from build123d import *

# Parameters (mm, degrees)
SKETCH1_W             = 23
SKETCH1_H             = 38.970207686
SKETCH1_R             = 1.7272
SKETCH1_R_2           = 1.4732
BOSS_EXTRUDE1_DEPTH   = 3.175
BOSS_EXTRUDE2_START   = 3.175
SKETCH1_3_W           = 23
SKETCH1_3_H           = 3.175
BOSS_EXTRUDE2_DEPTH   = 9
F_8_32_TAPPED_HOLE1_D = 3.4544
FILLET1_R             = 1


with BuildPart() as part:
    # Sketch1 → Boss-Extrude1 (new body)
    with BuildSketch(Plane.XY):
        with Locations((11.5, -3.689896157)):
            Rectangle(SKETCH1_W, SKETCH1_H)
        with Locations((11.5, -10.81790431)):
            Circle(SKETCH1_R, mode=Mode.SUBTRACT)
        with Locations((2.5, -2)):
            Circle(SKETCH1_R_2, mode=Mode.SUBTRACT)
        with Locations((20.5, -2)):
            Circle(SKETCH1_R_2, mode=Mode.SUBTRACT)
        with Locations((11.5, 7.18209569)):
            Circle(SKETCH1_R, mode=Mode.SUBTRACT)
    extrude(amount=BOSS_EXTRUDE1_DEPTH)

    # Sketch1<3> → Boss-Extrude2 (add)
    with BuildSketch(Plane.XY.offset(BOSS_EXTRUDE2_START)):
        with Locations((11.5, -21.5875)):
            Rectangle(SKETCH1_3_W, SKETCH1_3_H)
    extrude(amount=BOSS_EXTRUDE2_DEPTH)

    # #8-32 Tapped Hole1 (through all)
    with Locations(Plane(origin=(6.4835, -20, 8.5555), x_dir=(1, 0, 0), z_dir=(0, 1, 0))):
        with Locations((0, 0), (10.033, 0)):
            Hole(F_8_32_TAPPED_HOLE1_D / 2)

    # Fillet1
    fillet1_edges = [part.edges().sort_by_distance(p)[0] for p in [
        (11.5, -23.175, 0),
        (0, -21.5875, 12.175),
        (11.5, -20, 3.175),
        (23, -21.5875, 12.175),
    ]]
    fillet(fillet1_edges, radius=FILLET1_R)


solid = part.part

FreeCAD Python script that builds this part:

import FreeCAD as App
import Part
import Sketcher

V = App.Vector
Q = App.Units.Quantity


def edges_at(feature, points):
    """Names of the edges that pass closest to the given points."""
    edges = feature.Shape.Edges
    near = lambda p: min(range(len(edges)), key=lambda i: edges[i].distToShape(Part.Vertex(*p))[0])
    return sorted({f"Edge{near(p) + 1}" for p in points})

doc = App.newDocument("Part")
body = doc.addObject("PartDesign::Body", "Body")

# Sketch on XY plane
sketch1 = body.newObject("Sketcher::SketchObject", "Sketch")
sketch1.AttachmentSupport = (doc.getObject("XY_Plane"), [""])
sketch1.MapMode = "FlatFace"
sketch1.addGeometry([
    Part.LineSegment(V(0, 15.8, 0), V(0, -23.2, 0)),  # 0
    Part.LineSegment(V(0, -23.2, 0), V(23, -23.2, 0)),  # 1
    Part.LineSegment(V(23, -23.2, 0), V(23, 15.8, 0)),  # 2
    Part.LineSegment(V(23, 15.8, 0), V(0, 15.8, 0)),  # 3
    Part.Circle(V(2.5, -2, 0), V(0, 0, 1), 1.5),  # 4
    Part.Circle(V(11.5, -10.8, 0), V(0, 0, 1), 1.7),  # 5
    Part.Circle(V(20.5, -2, 0), V(0, 0, 1), 1.5),  # 6
    Part.Circle(V(11.5, 7.2, 0), V(0, 0, 1), 1.7),  # 7
], False)
sketch1.addConstraint([
    Sketcher.Constraint("Coincident", 0, 2, 1, 1),
    Sketcher.Constraint("Coincident", 1, 2, 2, 1),
    Sketcher.Constraint("Coincident", 2, 2, 3, 1),
    Sketcher.Constraint("Coincident", 3, 2, 0, 1),
    Sketcher.Constraint("Vertical", 0),
    Sketcher.Constraint("Horizontal", 1),
    Sketcher.Constraint("Vertical", 2),
    Sketcher.Constraint("Horizontal", 3),
    Sketcher.Constraint("Equal", 4, 6),
    Sketcher.Constraint("Equal", 5, 7),
    Sketcher.Constraint("PointOnObject", 0, 2, -2),
    Sketcher.Constraint("Horizontal", 4, 3, 6, 3),
    Sketcher.Constraint("Vertical", 5, 3, 7, 3),
    Sketcher.Constraint("DistanceX", 1, 1, 1, 2, Q("23 mm")),
    Sketcher.Constraint("DistanceY", 4, 3, -1, 1, Q("2 mm")),
    Sketcher.Constraint("DistanceX", 4, 3, 5, 3, Q("9 mm")),
    Sketcher.Constraint("DistanceX", 5, 3, 6, 3, Q("9 mm")),
    Sketcher.Constraint("DistanceY", 5, 3, 7, 3, Q("18 mm")),
    Sketcher.Constraint("Diameter", 4, Q("2.9464 mm")),
    Sketcher.Constraint("Diameter", 5, Q("3.4544 mm")),
    Sketcher.Constraint("DistanceX", -1, 1, 4, 3, Q("2.5 mm")),
    Sketcher.Constraint("DistanceY", 0, 2, -1, 1, Q("23.175 mm")),
    Sketcher.Constraint("DistanceY", 0, 2, 0, 1, Q("38.970208 mm")),
    Sketcher.Constraint("DistanceY", 7, 3, 2, 2, Q("8.613112 mm")),
])
pad1 = body.newObject("PartDesign::Pad", "Pad")
pad1.Profile = sketch1
pad1.Length = 3.175

# Sketch on XY plane
sketch2 = body.newObject("Sketcher::SketchObject", "Sketch001")
sketch2.AttachmentSupport = (doc.getObject("XY_Plane"), [""])
sketch2.MapMode = "FlatFace"
sketch2.AttachmentOffset = App.Placement(V(0, 0, 3.175), App.Rotation())
sketch2.addGeometry([
    Part.LineSegment(V(0, -20, 0), V(0, -23.2, 0)),
    Part.LineSegment(V(0, -23.2, 0), V(23, -23.2, 0)),
    Part.LineSegment(V(23, -23.2, 0), V(23, -20, 0)),
    Part.LineSegment(V(23, -20, 0), V(0, -20, 0)),
], False)
sketch2.addConstraint([
    Sketcher.Constraint("Coincident", 0, 2, 1, 1),
    Sketcher.Constraint("Coincident", 1, 2, 2, 1),
    Sketcher.Constraint("Coincident", 2, 2, 3, 1),
    Sketcher.Constraint("Coincident", 3, 2, 0, 1),
    Sketcher.Constraint("Vertical", 0),
    Sketcher.Constraint("Horizontal", 1),
    Sketcher.Constraint("Vertical", 2),
    Sketcher.Constraint("Horizontal", 3),
    Sketcher.Constraint("PointOnObject", 0, 2, -2),
    Sketcher.Constraint("DistanceX", 1, 1, 1, 2, Q("23 mm")),
    Sketcher.Constraint("DistanceY", 2, 2, -1, 1, Q("20 mm")),
    Sketcher.Constraint("DistanceY", 0, 2, 0, 1, Q("3.175 mm")),
])
pad2 = body.newObject("PartDesign::Pad", "Pad001")
pad2.Profile = sketch2
pad2.Length = 9

# Sketch on XZ plane
sketch3 = body.newObject("Sketcher::SketchObject", "Sketch002")
sketch3.AttachmentSupport = (doc.getObject("XZ_Plane"), [""])
sketch3.MapMode = "FlatFace"
sketch3.AttachmentOffset = App.Placement(V(0, 0, 20), App.Rotation())
sketch3.addGeometry([
    Part.Circle(V(6.5, 8.6, 0), V(0, 0, 1), 1.7),
    Part.Circle(V(16.5, 8.6, 0), V(0, 0, 1), 1.7),
], False)
sketch3.addConstraint([
    Sketcher.Constraint("Equal", 0, 1),
    Sketcher.Constraint("Horizontal", 0, 3, 1, 3),
    Sketcher.Constraint("Diameter", 0, Q("3.4544 mm")),
    Sketcher.Constraint("DistanceX", 0, 3, 1, 3, Q("10.033 mm")),
    Sketcher.Constraint("DistanceX", -1, 1, 0, 3, Q("6.4835 mm")),
    Sketcher.Constraint("DistanceY", -1, 1, 0, 3, Q("8.5555 mm")),
])
doc.recompute()
hole = body.newObject("PartDesign::Hole", "Hole")
hole.Profile = sketch3
hole.ThreadType = "None"
hole.Diameter = 3.4544
hole.DepthType = "ThroughAll"
hole.Reversed = True
doc.recompute()

fillet = body.newObject("PartDesign::Fillet", "Fillet")
fillet.Base = (hole, edges_at(hole, [
    (11.5, -23.175, 0),
    (0, -21.587, 12.175),
    (11.5, -20, 3.175),
    (23, -21.587, 12.175),
]))
fillet.Radius = 1

doc.recompute()
